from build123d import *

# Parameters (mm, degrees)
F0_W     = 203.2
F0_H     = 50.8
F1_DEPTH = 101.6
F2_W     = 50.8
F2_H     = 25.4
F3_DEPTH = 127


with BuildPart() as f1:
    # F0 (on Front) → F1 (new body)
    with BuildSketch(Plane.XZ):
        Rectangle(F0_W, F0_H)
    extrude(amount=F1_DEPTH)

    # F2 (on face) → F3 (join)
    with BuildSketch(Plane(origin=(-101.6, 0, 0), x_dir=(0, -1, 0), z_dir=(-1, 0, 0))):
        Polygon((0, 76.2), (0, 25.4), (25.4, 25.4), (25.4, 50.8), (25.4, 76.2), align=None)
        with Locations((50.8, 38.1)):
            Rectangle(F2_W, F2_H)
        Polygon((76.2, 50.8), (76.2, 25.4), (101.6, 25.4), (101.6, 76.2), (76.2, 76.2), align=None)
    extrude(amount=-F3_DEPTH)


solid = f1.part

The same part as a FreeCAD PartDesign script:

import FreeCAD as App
import Part
import Sketcher

V = App.Vector
Q = App.Units.Quantity


def add_polygon(sketch, points):
    """Adds a closed chain of lines whose ends are joined by coincident constraints."""
    first, n = sketch.GeometryCount, len(points)
    for a, b in zip(points, points[1:] + points[:1]):
        sketch.addGeometry(Part.LineSegment(App.Vector(*a, 0), App.Vector(*b, 0)), False)
    for i in range(n):
        sketch.addConstraint(Sketcher.Constraint("Coincident", first + i, 2, first + (i + 1) % n, 1))

doc = App.newDocument("Part")
body = doc.addObject("PartDesign::Body", "Body")

# Sketch on XZ plane
sketch1 = body.newObject("Sketcher::SketchObject", "Sketch")
sketch1.AttachmentSupport = (doc.getObject("XZ_Plane"), [""])
sketch1.MapMode = "FlatFace"
add_polygon(sketch1, [(-102, 25), (-102, -25), (102, -25), (102, 25)])  # lines 0-3
sketch1.addConstraint(Sketcher.Constraint("Vertical", 0))
sketch1.addConstraint(Sketcher.Constraint("Horizontal", 1))
sketch1.addConstraint(Sketcher.Constraint("Vertical", 2))
sketch1.addConstraint(Sketcher.Constraint("Horizontal", 3))
sketch1.addConstraint(Sketcher.Constraint("Symmetric", 0, 2, 2, 2, -1, 1))
sketch1.addConstraint(Sketcher.Constraint("DistanceX", 1, 1, 1, 2, Q("8 in")))
sketch1.addConstraint(Sketcher.Constraint("DistanceY", 0, 2, 0, 1, Q("2 in")))
pad1 = body.newObject("PartDesign::Pad", "Pad")
pad1.Profile = sketch1
pad1.Length = Q("4 in")

# Sketch on YZ plane
sketch2 = body.newObject("Sketcher::SketchObject", "Sketch001")
sketch2.AttachmentSupport = (doc.getObject("YZ_Plane"), [""])
sketch2.MapMode = "FlatFace"
sketch2.AttachmentOffset = App.Placement(V(0, 0, -4 * 25.4), App.Rotation())
add_polygon(sketch2, [(0, 76), (0, 25), (-102, 25), (-102, 76), (-76, 76), (-76, 51), (-25, 51), (-25, 76)])  # lines 0-7
sketch2.addConstraint(Sketcher.Constraint("Vertical", 0))
sketch2.addConstraint(Sketcher.Constraint("Horizontal", 1))
sketch2.addConstraint(Sketcher.Constraint("Vertical", 2))
sketch2.addConstraint(Sketcher.Constraint("Horizontal", 3))
sketch2.addConstraint(Sketcher.Constraint("Vertical", 4))
sketch2.addConstraint(Sketcher.Constraint("Horizontal", 5))
sketch2.addConstraint(Sketcher.Constraint("Vertical", 6))
sketch2.addConstraint(Sketcher.Constraint("Horizontal", 7))
sketch2.addConstraint(Sketcher.Constraint("PointOnObject", 0, 2, -2))
sketch2.addConstraint(Sketcher.Constraint("Horizontal", 3, 2, 6, 2))
sketch2.addConstraint(Sketcher.Constraint("Equal", 3, 7))
sketch2.addConstraint(Sketcher.Constraint("Equal", 5, 0))
sketch2.addConstraint(Sketcher.Constraint("Equal", 7, 4))
sketch2.addConstraint(Sketcher.Constraint("DistanceX", 1, 2, 1, 1, Q("4 in")))
sketch2.addConstraint(Sketcher.Constraint("DistanceX", 3, 1, 3, 2, Q("1 in")))
sketch2.addConstraint(Sketcher.Constraint("DistanceY", -1, 1, 0, 2, Q("1 in")))
pad2 = body.newObject("PartDesign::Pad", "Pad001")
pad2.Profile = sketch2
pad2.Length = Q("5 in")

doc.recompute()
